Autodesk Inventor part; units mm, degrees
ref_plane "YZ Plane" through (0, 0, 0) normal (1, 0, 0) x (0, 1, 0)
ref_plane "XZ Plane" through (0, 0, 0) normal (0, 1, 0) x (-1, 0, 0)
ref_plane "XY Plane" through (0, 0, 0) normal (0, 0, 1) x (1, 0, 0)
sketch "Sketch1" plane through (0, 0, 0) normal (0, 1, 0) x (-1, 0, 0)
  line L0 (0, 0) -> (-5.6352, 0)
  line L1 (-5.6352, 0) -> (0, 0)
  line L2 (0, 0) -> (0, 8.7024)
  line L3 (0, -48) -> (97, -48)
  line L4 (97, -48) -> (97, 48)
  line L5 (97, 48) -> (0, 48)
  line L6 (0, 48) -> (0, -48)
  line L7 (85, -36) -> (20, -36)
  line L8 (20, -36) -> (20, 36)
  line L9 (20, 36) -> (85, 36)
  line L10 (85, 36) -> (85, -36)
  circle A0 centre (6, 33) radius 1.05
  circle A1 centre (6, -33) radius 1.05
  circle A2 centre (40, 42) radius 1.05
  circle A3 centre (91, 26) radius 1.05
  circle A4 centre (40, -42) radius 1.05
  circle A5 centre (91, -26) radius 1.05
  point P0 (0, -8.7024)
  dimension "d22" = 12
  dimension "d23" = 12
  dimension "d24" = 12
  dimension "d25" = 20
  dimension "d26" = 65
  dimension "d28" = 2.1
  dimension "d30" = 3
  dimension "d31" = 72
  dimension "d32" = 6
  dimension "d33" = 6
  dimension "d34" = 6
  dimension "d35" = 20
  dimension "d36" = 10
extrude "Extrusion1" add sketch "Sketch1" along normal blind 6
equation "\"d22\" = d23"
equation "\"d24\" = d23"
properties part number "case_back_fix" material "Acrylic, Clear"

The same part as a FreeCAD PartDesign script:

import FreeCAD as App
import Part
import Sketcher
from FreeCAD import Vector

doc = App.newDocument("Part")
body = doc.addObject("PartDesign::Body", "Body")

# Sketch on XZ plane
sketch1 = doc.addObject("Sketcher::SketchObject", "Sketch")
body.addObject(sketch1)
sketch1.AttachmentSupport = (doc.XZ_Plane, [""])
sketch1.MapMode = "FlatFace"
sketch1.addGeometry([
    Part.LineSegment(Vector(0, 48, 0), Vector(0, -48, 0)),  # 0
    Part.LineSegment(Vector(0, -48, 0), Vector(-97, -48, 0)),  # 1
    Part.LineSegment(Vector(-97, -48, 0), Vector(-97, 48, 0)),  # 2
    Part.LineSegment(Vector(-97, 48, 0), Vector(0, 48, 0)),  # 3
    Part.Circle(Vector(-6, -33, 0), Vector(0, 0, 1), 1.05),  # 4
    Part.Circle(Vector(-40, -42, 0), Vector(0, 0, 1), 1.05),  # 5
    Part.Circle(Vector(-91, -26, 0), Vector(0, 0, 1), 1.05),  # 6
    Part.Circle(Vector(-6, 33, 0), Vector(0, 0, 1), 1.05),  # 7
    Part.Circle(Vector(-40, 42, 0), Vector(0, 0, 1), 1.05),  # 8
    Part.LineSegment(Vector(-85, 36, 0), Vector(-85, -36, 0)),  # 9
    Part.LineSegment(Vector(-85, -36, 0), Vector(-20, -36, 0)),  # 10
    Part.LineSegment(Vector(-20, -36, 0), Vector(-20, 36, 0)),  # 11
    Part.LineSegment(Vector(-20, 36, 0), Vector(-85, 36, 0)),  # 12
    Part.Circle(Vector(-91, 26, 0), Vector(0, 0, 1), 1.05),  # 13
], False)
sketch1.addConstraint([
    Sketcher.Constraint("Coincident", 0, 2, 1, 1),
    Sketcher.Constraint("Coincident", 1, 2, 2, 1),
    Sketcher.Constraint("Coincident", 2, 2, 3, 1),
    Sketcher.Constraint("Coincident", 3, 2, 0, 1),
    Sketcher.Constraint("Coincident", 9, 2, 10, 1),
    Sketcher.Constraint("Coincident", 10, 2, 11, 1),
    Sketcher.Constraint("Coincident", 11, 2, 12, 1),
    Sketcher.Constraint("Coincident", 12, 2, 9, 1),
    Sketcher.Constraint("Vertical", 0),
    Sketcher.Constraint("Horizontal", 1),
    Sketcher.Constraint("Vertical", 2),
    Sketcher.Constraint("Horizontal", 3),
    Sketcher.Constraint("Vertical", 9),
    Sketcher.Constraint("Horizontal", 10),
    Sketcher.Constraint("Vertical", 11),
    Sketcher.Constraint("Horizontal", 12),
    Sketcher.Constraint("Equal", 4, 5),
    Sketcher.Constraint("Equal", 5, 6),
    Sketcher.Constraint("Equal", 6, 7),
    Sketcher.Constraint("Equal", 7, 8),
    Sketcher.Constraint("Equal", 8, 13),
    Sketcher.Constraint("Symmetric", 0, 2, 3, 2, -1, 1),
    Sketcher.Constraint("Symmetric", 4, 3, 7, 3, -1),
    Sketcher.Constraint("Symmetric", 5, 3, 8, 3, -1),
    Sketcher.Constraint("Symmetric", 6, 3, 13, 3, -1),
    Sketcher.Constraint("Diameter", 4, 2.1),
    Sketcher.Constraint("DistanceX", 10, 1, 10, 2, 65.0),
    Sketcher.Constraint("DistanceY", 9, 2, 9, 1, 72.0),
    Sketcher.Constraint("DistanceX", 4, 3, -1, 1, 6.0),
    Sketcher.Constraint("DistanceX", 10, 2, -1, 1, 20.0),
    Sketcher.Constraint("DistanceY", 0, 2, 5, 3, 6.0),
    Sketcher.Constraint("DistanceX", 1, 2, 6, 3, 6.0),
    Sketcher.Constraint("DistanceX", 6, 3, 9, 2, 6.0),
    Sketcher.Constraint("DistanceY", 9, 2, 6, 3, 10.0),
    Sketcher.Constraint("DistanceY", 1, 2, 9, 2, 12.0),
    Sketcher.Constraint("DistanceY", 9, 2, 4, 3, 3.0),
    Sketcher.Constraint("DistanceX", 5, 3, 10, 2, 20.0),
    Sketcher.Constraint("DistanceY", 7, 3, 11, 2, 3.0),
])
pad1 = doc.addObject("PartDesign::Pad", "Pad")
body.addObject(pad1)
pad1.Profile = sketch1
pad1.Length = 6
pad1.Reversed = True

doc.recompute()
